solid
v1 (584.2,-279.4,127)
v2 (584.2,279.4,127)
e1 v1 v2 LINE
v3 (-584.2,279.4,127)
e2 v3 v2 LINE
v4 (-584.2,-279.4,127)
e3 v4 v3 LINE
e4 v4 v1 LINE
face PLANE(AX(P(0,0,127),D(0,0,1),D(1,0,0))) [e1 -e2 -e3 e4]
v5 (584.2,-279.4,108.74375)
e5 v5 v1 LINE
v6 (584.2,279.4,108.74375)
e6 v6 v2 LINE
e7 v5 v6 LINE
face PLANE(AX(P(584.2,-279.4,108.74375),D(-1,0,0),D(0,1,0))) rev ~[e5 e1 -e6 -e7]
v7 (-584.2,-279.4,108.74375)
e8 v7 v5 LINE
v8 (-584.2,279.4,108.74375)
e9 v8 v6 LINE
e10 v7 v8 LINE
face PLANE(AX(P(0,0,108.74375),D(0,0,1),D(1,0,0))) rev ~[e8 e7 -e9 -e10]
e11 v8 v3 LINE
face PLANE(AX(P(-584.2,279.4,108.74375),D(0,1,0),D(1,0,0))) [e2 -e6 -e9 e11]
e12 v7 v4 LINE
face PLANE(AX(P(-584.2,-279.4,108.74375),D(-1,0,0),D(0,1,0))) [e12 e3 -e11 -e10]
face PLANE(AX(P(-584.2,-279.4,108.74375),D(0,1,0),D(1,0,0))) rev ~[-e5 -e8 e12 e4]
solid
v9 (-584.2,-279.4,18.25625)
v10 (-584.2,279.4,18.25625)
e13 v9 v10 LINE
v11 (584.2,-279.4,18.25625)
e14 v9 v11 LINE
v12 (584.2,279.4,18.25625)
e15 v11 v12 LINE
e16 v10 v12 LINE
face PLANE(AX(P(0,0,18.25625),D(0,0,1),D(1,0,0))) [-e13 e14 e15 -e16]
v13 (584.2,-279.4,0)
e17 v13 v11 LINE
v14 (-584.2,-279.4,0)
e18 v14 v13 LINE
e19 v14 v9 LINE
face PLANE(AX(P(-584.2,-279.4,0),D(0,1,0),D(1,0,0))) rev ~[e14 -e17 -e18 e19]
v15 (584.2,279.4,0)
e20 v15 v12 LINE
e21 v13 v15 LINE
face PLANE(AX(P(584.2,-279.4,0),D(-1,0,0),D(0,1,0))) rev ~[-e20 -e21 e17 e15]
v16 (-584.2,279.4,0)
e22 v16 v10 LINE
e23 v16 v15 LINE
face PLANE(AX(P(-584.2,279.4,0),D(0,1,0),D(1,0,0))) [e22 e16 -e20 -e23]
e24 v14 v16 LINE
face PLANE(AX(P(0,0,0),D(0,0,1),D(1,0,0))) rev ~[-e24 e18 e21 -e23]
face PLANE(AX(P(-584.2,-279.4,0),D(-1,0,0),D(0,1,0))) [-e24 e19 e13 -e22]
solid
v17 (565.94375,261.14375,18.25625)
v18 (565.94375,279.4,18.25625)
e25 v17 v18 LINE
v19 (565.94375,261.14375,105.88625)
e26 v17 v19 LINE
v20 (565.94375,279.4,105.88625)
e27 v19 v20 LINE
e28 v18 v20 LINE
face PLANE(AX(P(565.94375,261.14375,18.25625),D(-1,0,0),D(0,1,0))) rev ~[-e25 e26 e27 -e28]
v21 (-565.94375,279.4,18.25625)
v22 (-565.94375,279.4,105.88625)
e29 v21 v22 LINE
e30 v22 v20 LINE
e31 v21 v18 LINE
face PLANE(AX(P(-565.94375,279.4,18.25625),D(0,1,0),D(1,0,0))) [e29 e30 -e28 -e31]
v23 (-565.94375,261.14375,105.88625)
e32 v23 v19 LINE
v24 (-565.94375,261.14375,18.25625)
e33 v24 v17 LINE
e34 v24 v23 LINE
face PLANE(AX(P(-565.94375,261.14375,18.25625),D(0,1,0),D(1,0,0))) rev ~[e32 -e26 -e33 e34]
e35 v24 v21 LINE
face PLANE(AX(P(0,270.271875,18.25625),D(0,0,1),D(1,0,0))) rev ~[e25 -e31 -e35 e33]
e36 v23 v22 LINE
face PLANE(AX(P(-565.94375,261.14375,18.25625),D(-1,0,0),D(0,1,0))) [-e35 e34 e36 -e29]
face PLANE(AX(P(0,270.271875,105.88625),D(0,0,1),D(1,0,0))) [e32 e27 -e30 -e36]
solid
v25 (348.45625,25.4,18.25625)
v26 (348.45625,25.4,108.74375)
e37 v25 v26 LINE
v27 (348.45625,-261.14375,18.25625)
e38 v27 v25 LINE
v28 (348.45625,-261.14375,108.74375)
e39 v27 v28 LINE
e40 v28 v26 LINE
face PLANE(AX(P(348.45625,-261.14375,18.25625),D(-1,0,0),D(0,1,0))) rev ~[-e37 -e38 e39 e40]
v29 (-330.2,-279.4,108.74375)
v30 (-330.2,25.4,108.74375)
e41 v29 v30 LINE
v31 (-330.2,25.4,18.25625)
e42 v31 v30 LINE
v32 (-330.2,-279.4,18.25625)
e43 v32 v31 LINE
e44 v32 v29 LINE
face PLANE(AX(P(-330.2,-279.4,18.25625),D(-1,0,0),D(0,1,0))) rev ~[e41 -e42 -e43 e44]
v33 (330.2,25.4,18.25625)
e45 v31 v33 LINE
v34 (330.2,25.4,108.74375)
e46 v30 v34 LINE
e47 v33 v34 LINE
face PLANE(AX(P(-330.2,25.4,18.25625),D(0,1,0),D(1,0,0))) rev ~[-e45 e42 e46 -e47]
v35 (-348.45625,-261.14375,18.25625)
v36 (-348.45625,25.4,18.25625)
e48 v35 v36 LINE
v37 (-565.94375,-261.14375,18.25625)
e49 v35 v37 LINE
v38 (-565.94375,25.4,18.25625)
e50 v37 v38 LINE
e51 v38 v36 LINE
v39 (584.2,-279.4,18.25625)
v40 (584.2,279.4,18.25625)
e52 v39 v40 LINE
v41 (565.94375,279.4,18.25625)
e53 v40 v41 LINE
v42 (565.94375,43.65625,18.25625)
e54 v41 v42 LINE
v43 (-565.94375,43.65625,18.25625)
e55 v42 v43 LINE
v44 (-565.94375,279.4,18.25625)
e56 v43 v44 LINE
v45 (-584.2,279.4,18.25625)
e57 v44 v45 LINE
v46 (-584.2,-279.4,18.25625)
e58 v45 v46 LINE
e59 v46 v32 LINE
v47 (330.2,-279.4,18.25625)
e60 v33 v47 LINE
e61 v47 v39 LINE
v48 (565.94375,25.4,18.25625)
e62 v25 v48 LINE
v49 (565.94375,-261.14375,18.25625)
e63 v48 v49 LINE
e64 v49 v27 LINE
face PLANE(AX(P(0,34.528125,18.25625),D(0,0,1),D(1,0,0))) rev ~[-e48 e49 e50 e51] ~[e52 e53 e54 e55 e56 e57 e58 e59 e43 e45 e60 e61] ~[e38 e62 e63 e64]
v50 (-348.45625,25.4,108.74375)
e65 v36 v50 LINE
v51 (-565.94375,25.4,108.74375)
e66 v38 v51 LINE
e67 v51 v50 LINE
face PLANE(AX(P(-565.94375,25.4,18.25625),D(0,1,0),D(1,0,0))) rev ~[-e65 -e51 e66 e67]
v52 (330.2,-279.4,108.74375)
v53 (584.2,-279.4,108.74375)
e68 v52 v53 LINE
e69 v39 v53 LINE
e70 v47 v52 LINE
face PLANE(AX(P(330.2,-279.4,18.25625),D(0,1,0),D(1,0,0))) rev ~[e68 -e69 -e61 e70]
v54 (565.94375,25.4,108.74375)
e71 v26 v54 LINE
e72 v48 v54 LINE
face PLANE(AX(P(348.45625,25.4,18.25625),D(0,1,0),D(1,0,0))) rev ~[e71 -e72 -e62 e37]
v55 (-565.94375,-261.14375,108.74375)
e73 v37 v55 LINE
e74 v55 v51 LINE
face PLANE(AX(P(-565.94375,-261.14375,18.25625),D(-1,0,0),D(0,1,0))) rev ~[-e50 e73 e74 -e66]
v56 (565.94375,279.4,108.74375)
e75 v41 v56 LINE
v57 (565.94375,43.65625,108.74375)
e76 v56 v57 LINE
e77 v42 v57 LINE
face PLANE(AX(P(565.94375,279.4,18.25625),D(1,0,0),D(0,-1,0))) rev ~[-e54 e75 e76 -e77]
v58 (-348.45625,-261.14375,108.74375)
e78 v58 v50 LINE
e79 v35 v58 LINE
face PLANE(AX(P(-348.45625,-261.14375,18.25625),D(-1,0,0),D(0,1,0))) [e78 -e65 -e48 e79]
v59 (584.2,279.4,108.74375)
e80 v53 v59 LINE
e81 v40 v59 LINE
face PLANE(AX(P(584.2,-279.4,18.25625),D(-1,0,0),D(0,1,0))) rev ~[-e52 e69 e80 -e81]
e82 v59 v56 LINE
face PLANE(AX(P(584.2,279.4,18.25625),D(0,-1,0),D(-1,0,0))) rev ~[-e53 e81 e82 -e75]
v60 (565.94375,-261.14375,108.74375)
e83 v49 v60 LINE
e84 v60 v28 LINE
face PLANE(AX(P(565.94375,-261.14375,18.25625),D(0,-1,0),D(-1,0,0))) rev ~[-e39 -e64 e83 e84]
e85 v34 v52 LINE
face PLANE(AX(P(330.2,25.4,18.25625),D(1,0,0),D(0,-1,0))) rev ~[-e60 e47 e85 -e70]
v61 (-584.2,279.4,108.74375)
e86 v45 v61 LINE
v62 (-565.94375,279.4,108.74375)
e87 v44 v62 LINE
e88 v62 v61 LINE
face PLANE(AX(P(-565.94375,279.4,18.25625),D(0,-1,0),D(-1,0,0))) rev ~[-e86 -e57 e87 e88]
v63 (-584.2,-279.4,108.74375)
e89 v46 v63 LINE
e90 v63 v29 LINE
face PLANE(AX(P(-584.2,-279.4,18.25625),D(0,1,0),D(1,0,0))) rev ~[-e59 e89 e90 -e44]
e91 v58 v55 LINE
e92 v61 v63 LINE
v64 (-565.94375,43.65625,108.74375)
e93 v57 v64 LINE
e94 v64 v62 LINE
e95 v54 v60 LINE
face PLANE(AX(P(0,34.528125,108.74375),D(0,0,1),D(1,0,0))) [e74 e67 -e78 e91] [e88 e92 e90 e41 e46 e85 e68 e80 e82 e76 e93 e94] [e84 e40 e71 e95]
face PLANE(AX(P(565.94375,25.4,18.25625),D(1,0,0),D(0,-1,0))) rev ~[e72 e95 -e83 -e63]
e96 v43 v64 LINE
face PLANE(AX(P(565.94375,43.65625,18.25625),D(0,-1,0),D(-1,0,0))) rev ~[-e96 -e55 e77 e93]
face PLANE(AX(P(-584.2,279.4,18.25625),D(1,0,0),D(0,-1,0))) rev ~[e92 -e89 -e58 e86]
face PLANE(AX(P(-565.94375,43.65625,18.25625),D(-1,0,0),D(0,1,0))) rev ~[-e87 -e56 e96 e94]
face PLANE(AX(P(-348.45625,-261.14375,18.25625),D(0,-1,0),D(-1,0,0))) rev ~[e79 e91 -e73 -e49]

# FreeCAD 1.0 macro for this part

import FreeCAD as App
import Part
import Sketcher
from FreeCAD import Vector
Q = App.Units.Quantity


def add_polygon(sketch, points):
    """Adds a closed chain of lines whose ends are joined by coincident constraints."""
    first, n = sketch.GeometryCount, len(points)
    for a, b in zip(points, points[1:] + points[:1]):
        sketch.addGeometry(Part.LineSegment(App.Vector(*a, 0), App.Vector(*b, 0)), False)
    for i in range(n):
        sketch.addConstraint(Sketcher.Constraint("Coincident", first + i, 2, first + (i + 1) % n, 1))

doc = App.newDocument("Part")
body = doc.addObject("PartDesign::Body", "Body")

sketch1 = doc.addObject("Sketcher::SketchObject", "Sketch")
body.addObject(sketch1)
sketch1.AttachmentSupport = (doc.XY_Plane, [""])
sketch1.MapMode = "FlatFace"
add_polygon(sketch1, [(-584.2, 279.4), (-584.2, -279.4), (584.2, -279.4), (584.2, 279.4)])
sketch1.addConstraint([
    Sketcher.Constraint("Vertical", 0),
    Sketcher.Constraint("Horizontal", 1),
    Sketcher.Constraint("Vertical", 2),
    Sketcher.Constraint("Horizontal", 3),
    Sketcher.Constraint("Symmetric", 0, 2, 2, 2, -1, 1),
    Sketcher.Constraint("DistanceX", 1, 1, 1, 2, Q("46 in")),
    Sketcher.Constraint("DistanceY", 0, 2, 0, 1, Q("22 in")),
])
pad1 = doc.addObject("PartDesign::Pad", "Pad")
body.addObject(pad1)
pad1.Profile = sketch1
pad1.Length = Q("0.71875 in")
body2 = doc.addObject("PartDesign::Body", "Body001")

sketch2 = doc.addObject("Sketcher::SketchObject", "Sketch001")
body2.addObject(sketch2)
sketch2.AttachmentSupport = (doc.getObject("XY_Plane001"), [""])
sketch2.MapMode = "FlatFace"
sketch2.AttachmentOffset = App.Placement(Vector(0, 0, 0.71875 * 25.4), App.Rotation())
add_polygon(sketch2, [(565.94375, 43.65625), (-565.94375, 43.65625), (-565.94375, 279.4), (-584.2, 279.4), (-584.2, -279.4), (-330.2, -279.4), (-330.2, 25.4), (330.2, 25.4), (330.2, -279.4), (584.2, -279.4), (584.2, 279.4), (565.94375, 279.4)])
add_polygon(sketch2, [(348.45625, -261.14375), (348.45625, 25.4), (565.94375, 25.4), (565.94375, -261.14375)])
add_polygon(sketch2, [(-565.94375, -261.14375), (-565.94375, 25.4), (-348.45625, 25.4), (-348.45625, -261.14375)])
sketch2.addConstraint([
    Sketcher.Constraint("Horizontal", 0),
    Sketcher.Constraint("Vertical", 1),
    Sketcher.Constraint("Horizontal", 2),
    Sketcher.Constraint("Vertical", 3),
    Sketcher.Constraint("Horizontal", 4),
    Sketcher.Constraint("Vertical", 5),
    Sketcher.Constraint("Horizontal", 6),
    Sketcher.Constraint("Vertical", 7),
    Sketcher.Constraint("Horizontal", 8),
    Sketcher.Constraint("Vertical", 9),
    Sketcher.Constraint("Horizontal", 10),
    Sketcher.Constraint("Vertical", 11),
    Sketcher.Constraint("Vertical", 12),
    Sketcher.Constraint("Horizontal", 13),
    Sketcher.Constraint("Vertical", 14),
    Sketcher.Constraint("Horizontal", 15),
    Sketcher.Constraint("Vertical", 16),
    Sketcher.Constraint("Horizontal", 17),
    Sketcher.Constraint("Vertical", 18),
    Sketcher.Constraint("Horizontal", 19),
    Sketcher.Constraint("Symmetric", 2, 2, 8, 2, -1, 1),
    Sketcher.Constraint("Symmetric", 4, 2, 7, 2, -2),
    Sketcher.Constraint("Symmetric", 1, 2, 10, 2, -2),
    Sketcher.Constraint("Symmetric", 13, 2, 16, 2, -2),
    Sketcher.Constraint("Symmetric", 15, 2, 18, 2, -2),
    Sketcher.Constraint("Horizontal", 6, 2, 12, 2),
    Sketcher.Constraint("Vertical", 11, 2, 13, 2),
    Sketcher.Constraint("DistanceX", 4, 1, 4, 2, Q("10 in")),
    Sketcher.Constraint("DistanceX", 6, 1, 6, 2, Q("26 in")),
    Sketcher.Constraint("DistanceY", 3, 2, 3, 1, Q("22 in")),
    Sketcher.Constraint("DistanceY", 5, 1, 5, 2, Q("12 in")),
    Sketcher.Constraint("DistanceY", 14, 2, 11, 2, Q("12 in")),
    Sketcher.Constraint("DistanceX", 0, 2, 0, 1, Q("44.5625 in")),
    Sketcher.Constraint("DistanceX", 13, 1, 13, 2, Q("8.5625 in")),
    Sketcher.Constraint("DistanceY", 1, 1, 1, 2, Q("9.28125 in")),
])
pad2 = doc.addObject("PartDesign::Pad", "Pad001")
body2.addObject(pad2)
pad2.Profile = sketch2
pad2.Length = Q("3.5625 in")
body3 = doc.addObject("PartDesign::Body", "Body002")

sketch3 = doc.addObject("Sketcher::SketchObject", "Sketch002")
body3.addObject(sketch3)
sketch3.AttachmentSupport = (doc.getObject("XY_Plane002"), [""])
sketch3.MapMode = "FlatFace"
sketch3.AttachmentOffset = App.Placement(Vector(0, 0, 0.71875 * 25.4), App.Rotation())
add_polygon(sketch3, [(-565.94375, 279.4), (-565.94375, 261.14375), (565.94375, 261.14375), (565.94375, 279.4)])
sketch3.addConstraint([
    Sketcher.Constraint("Vertical", 0),
    Sketcher.Constraint("Horizontal", 1),
    Sketcher.Constraint("Vertical", 2),
    Sketcher.Constraint("Horizontal", 3),
    Sketcher.Constraint("DistanceY", -1, 1, 2, 2, Q("11 in")),
    Sketcher.Constraint("DistanceX", 1, 1, 1, 2, Q("44.5625 in")),
    Sketcher.Constraint("DistanceY", 0, 2, 0, 1, Q("0.71875 in")),
    Sketcher.Constraint("DistanceX", 0, 2, -1, 1, Q("22.28125 in")),
])
pad3 = doc.addObject("PartDesign::Pad", "Pad002")
body3.addObject(pad3)
pad3.Profile = sketch3
pad3.Length = Q("3.45 in")
body4 = doc.addObject("PartDesign::Body", "Body003")

sketch4 = doc.addObject("Sketcher::SketchObject", "Sketch003")
body4.addObject(sketch4)
sketch4.AttachmentSupport = (doc.getObject("XY_Plane003"), [""])
sketch4.MapMode = "FlatFace"
sketch4.AttachmentOffset = App.Placement(Vector(0, 0, 4.28125 * 25.4), App.Rotation())
add_polygon(sketch4, [(-584.2, 279.4), (-584.2, -279.4), (584.2, -279.4), (584.2, 279.4)])
sketch4.addConstraint([
    Sketcher.Constraint("Vertical", 0),
    Sketcher.Constraint("Horizontal", 1),
    Sketcher.Constraint("Vertical", 2),
    Sketcher.Constraint("Horizontal", 3),
    Sketcher.Constraint("Symmetric", 0, 2, 2, 2, -1, 1),
    Sketcher.Constraint("DistanceX", 1, 1, 1, 2, Q("46 in")),
    Sketcher.Constraint("DistanceY", 0, 2, 0, 1, Q("22 in")),
])
pad4 = doc.addObject("PartDesign::Pad", "Pad003")
body4.addObject(pad4)
pad4.Profile = sketch4
pad4.Length = Q("0.71875 in")

doc.recompute()
